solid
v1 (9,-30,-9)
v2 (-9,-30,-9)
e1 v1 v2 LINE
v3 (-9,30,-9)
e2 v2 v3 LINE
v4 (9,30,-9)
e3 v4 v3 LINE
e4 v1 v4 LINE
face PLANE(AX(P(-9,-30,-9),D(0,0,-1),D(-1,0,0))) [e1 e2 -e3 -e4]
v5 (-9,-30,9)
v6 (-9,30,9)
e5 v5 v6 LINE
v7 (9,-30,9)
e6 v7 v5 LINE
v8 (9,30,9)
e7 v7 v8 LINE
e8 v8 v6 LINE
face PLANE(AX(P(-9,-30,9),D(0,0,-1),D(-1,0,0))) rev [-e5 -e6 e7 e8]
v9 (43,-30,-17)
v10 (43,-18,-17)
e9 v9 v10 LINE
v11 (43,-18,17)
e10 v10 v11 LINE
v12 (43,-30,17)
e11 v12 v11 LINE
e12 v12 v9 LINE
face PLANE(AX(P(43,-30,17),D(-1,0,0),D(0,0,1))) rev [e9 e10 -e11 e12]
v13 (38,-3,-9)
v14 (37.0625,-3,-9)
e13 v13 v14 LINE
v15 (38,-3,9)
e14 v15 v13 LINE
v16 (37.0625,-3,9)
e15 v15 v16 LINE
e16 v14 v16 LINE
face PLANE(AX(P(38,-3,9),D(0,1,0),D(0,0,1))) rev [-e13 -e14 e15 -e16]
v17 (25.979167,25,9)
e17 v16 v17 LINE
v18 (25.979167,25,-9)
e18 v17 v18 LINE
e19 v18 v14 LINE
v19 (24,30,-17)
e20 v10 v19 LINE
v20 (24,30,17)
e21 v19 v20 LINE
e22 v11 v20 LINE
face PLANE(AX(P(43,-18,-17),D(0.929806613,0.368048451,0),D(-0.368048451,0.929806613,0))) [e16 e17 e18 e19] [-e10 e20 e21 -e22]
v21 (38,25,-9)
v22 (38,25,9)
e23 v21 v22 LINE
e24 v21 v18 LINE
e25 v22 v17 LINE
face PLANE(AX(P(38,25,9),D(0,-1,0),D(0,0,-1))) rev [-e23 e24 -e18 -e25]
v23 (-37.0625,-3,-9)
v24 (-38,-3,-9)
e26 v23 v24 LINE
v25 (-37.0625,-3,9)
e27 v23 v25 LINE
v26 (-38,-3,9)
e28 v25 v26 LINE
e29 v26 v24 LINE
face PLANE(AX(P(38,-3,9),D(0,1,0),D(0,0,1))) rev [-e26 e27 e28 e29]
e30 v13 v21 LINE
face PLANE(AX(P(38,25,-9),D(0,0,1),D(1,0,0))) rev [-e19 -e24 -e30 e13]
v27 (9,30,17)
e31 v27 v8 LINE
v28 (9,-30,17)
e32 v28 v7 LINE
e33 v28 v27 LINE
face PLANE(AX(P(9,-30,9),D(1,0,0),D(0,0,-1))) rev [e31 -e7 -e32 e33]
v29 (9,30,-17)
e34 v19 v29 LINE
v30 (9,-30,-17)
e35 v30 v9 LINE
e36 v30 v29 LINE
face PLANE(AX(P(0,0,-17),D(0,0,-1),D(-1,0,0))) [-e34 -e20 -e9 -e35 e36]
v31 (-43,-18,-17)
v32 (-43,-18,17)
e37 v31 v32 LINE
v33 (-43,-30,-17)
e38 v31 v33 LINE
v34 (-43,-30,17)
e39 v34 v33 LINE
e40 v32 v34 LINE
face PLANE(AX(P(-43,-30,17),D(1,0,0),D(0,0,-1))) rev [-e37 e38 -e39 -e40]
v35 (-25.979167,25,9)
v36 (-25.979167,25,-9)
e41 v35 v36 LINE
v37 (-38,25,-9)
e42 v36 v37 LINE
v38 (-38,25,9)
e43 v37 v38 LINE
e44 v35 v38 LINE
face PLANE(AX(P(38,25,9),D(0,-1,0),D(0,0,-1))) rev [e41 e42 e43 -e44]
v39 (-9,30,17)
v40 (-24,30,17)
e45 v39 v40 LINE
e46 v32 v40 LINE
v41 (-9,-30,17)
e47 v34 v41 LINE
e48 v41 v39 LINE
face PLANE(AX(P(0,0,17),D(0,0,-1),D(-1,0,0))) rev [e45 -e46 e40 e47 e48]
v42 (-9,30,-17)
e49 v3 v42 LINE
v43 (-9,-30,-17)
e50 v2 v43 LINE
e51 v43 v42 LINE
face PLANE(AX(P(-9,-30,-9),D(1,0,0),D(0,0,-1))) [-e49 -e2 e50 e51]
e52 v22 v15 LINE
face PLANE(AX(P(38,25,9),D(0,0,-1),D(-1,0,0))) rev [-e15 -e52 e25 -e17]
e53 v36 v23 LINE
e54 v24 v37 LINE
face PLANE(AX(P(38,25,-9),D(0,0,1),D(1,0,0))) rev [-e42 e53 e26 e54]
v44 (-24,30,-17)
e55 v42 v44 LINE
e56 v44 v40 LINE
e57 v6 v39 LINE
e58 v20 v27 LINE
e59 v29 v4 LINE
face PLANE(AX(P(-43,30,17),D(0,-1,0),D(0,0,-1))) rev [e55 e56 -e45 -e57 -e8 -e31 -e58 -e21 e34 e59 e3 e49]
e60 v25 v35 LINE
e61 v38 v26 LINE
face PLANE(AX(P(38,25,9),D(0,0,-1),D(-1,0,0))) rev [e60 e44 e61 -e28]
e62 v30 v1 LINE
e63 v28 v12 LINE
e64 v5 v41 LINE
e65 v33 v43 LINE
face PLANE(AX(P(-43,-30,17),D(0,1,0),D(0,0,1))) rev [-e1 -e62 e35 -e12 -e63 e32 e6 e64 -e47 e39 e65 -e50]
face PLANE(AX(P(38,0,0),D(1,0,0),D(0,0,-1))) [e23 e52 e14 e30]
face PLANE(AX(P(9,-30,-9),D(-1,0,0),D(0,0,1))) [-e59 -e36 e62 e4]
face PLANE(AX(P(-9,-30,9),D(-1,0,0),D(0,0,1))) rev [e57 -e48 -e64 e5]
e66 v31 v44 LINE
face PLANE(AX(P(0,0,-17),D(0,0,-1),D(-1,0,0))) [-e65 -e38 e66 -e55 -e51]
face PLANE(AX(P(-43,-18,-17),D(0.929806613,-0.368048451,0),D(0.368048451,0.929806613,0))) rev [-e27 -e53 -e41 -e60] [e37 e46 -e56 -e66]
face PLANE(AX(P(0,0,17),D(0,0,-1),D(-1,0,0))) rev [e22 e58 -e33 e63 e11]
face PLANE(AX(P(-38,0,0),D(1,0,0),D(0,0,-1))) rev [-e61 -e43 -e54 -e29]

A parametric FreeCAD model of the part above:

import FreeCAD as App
import Part
import Sketcher
Q = App.Units.Quantity

doc = App.newDocument("Part")
body = doc.addObject("PartDesign::Body", "Body")

sketch1 = body.newObject("Sketcher::SketchObject", "Sketch")
sketch1.AttachmentSupport = (doc.getObject("XY_Plane"), [""])
sketch1.MapMode = "FlatFace"
sketch1.addGeometry([
    Part.LineSegment(App.Vector(-43, 30, 0), App.Vector(-43, -30, 0)),
    Part.LineSegment(App.Vector(-43, -30, 0), App.Vector(43, -30, 0)),
    Part.LineSegment(App.Vector(43, -30, 0), App.Vector(43, 30, 0)),
    Part.LineSegment(App.Vector(43, 30, 0), App.Vector(-43, 30, 0)),
], False)
sketch1.addConstraint([
    Sketcher.Constraint("Coincident", 0, 2, 1, 1),
    Sketcher.Constraint("Coincident", 1, 2, 2, 1),
    Sketcher.Constraint("Coincident", 2, 2, 3, 1),
    Sketcher.Constraint("Coincident", 3, 2, 0, 1),
    Sketcher.Constraint("Vertical", 0),
    Sketcher.Constraint("Horizontal", 1),
    Sketcher.Constraint("Vertical", 2),
    Sketcher.Constraint("Horizontal", 3),
    Sketcher.Constraint("Symmetric", 0, 2, 2, 2, -1, 1),
    Sketcher.Constraint("DistanceX", 1, 1, 1, 2, Q("86 mm")),
    Sketcher.Constraint("DistanceY", 0, 2, 0, 1, Q("60 mm")),
])
pad1 = body.newObject("PartDesign::Pad", "Pad")
pad1.Profile = sketch1
pad1.Length = 34
pad1.Midplane = True

sketch2 = body.newObject("Sketcher::SketchObject", "Sketch001")
sketch2.AttachmentSupport = (doc.getObject("XZ_Plane"), [""])
sketch2.MapMode = "FlatFace"
sketch2.addGeometry([
    Part.LineSegment(App.Vector(-9, 9, 0), App.Vector(-9, 17, 0)),
    Part.LineSegment(App.Vector(-9, 17, 0), App.Vector(9, 17, 0)),
    Part.LineSegment(App.Vector(9, 17, 0), App.Vector(9, 9, 0)),
    Part.LineSegment(App.Vector(9, 9, 0), App.Vector(-9, 9, 0)),
], False)
sketch2.addConstraint([
    Sketcher.Constraint("Coincident", 0, 2, 1, 1),
    Sketcher.Constraint("Coincident", 1, 2, 2, 1),
    Sketcher.Constraint("Coincident", 2, 2, 3, 1),
    Sketcher.Constraint("Coincident", 3, 2, 0, 1),
    Sketcher.Constraint("Vertical", 0),
    Sketcher.Constraint("Horizontal", 1),
    Sketcher.Constraint("Vertical", 2),
    Sketcher.Constraint("Horizontal", 3),
    Sketcher.Constraint("DistanceX", 1, 1, 1, 2, Q("18 mm")),
    Sketcher.Constraint("DistanceY", 0, 1, 0, 2, Q("8 mm")),
    Sketcher.Constraint("DistanceX", 0, 2, -1, 1, Q("9 mm")),
    Sketcher.Constraint("DistanceY", -1, 1, 0, 2, Q("17 mm")),
])
pocket1 = body.newObject("PartDesign::Pocket", "Pocket")
pocket1.Profile = sketch2
pocket1.Length = 112.23611
pocket1.Midplane = True
doc.recompute()

mirrored = body.newObject("PartDesign::Mirrored", "Mirrored")
mirrored.Originals = [pocket1]
mirrored.MirrorPlane = (doc.getObject("XY_Plane"), [""])
body.Tip = mirrored

sketch3 = body.newObject("Sketcher::SketchObject", "Sketch002")
sketch3.AttachmentSupport = (doc.getObject("XY_Plane"), [""])
sketch3.MapMode = "FlatFace"
sketch3.addGeometry([
    Part.LineSegment(App.Vector(-43, 30, 0), App.Vector(-43, -18, 0)),
    Part.LineSegment(App.Vector(-43, -18, 0), App.Vector(-24, 30, 0)),
    Part.LineSegment(App.Vector(-24, 30, 0), App.Vector(-43, 30, 0)),
], False)
sketch3.addConstraint([
    Sketcher.Constraint("Coincident", 0, 2, 1, 1),
    Sketcher.Constraint("Coincident", 1, 2, 2, 1),
    Sketcher.Constraint("Coincident", 2, 2, 0, 1),
    Sketcher.Constraint("Vertical", 0),
    Sketcher.Constraint("Horizontal", 2),
    Sketcher.Constraint("DistanceX", 2, 2, 2, 1, Q("19 mm")),
    Sketcher.Constraint("DistanceY", 0, 2, 0, 1, Q("48 mm")),
    Sketcher.Constraint("DistanceX", 0, 2, -1, 1, Q("43 mm")),
    Sketcher.Constraint("DistanceY", 0, 2, -1, 1, Q("18 mm")),
])
pocket2 = body.newObject("PartDesign::Pocket", "Pocket001")
pocket2.Profile = sketch3
pocket2.Length = 112.23611
pocket2.Midplane = True
doc.recompute()

mirrored2 = body.newObject("PartDesign::Mirrored", "Mirrored001")
mirrored2.Originals = [pocket2]
mirrored2.MirrorPlane = (doc.getObject("YZ_Plane"), [""])
body.Tip = mirrored2

sketch4 = body.newObject("Sketcher::SketchObject", "Sketch003")
sketch4.AttachmentSupport = (doc.getObject("YZ_Plane"), [""])
sketch4.MapMode = "FlatFace"
sketch4.addGeometry([
    Part.LineSegment(App.Vector(25, 9, 0), App.Vector(-3, 9, 0)),
    Part.LineSegment(App.Vector(-3, 9, 0), App.Vector(-3, -9, 0)),
    Part.LineSegment(App.Vector(-3, -9, 0), App.Vector(25, -9, 0)),
    Part.LineSegment(App.Vector(25, -9, 0), App.Vector(25, 9, 0)),
], False)
sketch4.addConstraint([
    Sketcher.Constraint("Coincident", 0, 2, 1, 1),
    Sketcher.Constraint("Coincident", 1, 2, 2, 1),
    Sketcher.Constraint("Coincident", 2, 2, 3, 1),
    Sketcher.Constraint("Coincident", 3, 2, 0, 1),
    Sketcher.Constraint("Horizontal", 0),
    Sketcher.Constraint("Vertical", 1),
    Sketcher.Constraint("Horizontal", 2),
    Sketcher.Constraint("Vertical", 3),
    Sketcher.Constraint("DistanceX", 0, 2, 0, 1, Q("28 mm")),
    Sketcher.Constraint("DistanceY", 1, 2, 1, 1, Q("18 mm")),
    Sketcher.Constraint("DistanceX", 0, 2, -1, 1, Q("3 mm")),
    Sketcher.Constraint("DistanceY", -1, 1, 0, 2, Q("9 mm")),
])
pad2 = body.newObject("PartDesign::Pad", "Pad001")
pad2.Profile = sketch4
pad2.Length = 76
pad2.Midplane = True

doc.recompute()
